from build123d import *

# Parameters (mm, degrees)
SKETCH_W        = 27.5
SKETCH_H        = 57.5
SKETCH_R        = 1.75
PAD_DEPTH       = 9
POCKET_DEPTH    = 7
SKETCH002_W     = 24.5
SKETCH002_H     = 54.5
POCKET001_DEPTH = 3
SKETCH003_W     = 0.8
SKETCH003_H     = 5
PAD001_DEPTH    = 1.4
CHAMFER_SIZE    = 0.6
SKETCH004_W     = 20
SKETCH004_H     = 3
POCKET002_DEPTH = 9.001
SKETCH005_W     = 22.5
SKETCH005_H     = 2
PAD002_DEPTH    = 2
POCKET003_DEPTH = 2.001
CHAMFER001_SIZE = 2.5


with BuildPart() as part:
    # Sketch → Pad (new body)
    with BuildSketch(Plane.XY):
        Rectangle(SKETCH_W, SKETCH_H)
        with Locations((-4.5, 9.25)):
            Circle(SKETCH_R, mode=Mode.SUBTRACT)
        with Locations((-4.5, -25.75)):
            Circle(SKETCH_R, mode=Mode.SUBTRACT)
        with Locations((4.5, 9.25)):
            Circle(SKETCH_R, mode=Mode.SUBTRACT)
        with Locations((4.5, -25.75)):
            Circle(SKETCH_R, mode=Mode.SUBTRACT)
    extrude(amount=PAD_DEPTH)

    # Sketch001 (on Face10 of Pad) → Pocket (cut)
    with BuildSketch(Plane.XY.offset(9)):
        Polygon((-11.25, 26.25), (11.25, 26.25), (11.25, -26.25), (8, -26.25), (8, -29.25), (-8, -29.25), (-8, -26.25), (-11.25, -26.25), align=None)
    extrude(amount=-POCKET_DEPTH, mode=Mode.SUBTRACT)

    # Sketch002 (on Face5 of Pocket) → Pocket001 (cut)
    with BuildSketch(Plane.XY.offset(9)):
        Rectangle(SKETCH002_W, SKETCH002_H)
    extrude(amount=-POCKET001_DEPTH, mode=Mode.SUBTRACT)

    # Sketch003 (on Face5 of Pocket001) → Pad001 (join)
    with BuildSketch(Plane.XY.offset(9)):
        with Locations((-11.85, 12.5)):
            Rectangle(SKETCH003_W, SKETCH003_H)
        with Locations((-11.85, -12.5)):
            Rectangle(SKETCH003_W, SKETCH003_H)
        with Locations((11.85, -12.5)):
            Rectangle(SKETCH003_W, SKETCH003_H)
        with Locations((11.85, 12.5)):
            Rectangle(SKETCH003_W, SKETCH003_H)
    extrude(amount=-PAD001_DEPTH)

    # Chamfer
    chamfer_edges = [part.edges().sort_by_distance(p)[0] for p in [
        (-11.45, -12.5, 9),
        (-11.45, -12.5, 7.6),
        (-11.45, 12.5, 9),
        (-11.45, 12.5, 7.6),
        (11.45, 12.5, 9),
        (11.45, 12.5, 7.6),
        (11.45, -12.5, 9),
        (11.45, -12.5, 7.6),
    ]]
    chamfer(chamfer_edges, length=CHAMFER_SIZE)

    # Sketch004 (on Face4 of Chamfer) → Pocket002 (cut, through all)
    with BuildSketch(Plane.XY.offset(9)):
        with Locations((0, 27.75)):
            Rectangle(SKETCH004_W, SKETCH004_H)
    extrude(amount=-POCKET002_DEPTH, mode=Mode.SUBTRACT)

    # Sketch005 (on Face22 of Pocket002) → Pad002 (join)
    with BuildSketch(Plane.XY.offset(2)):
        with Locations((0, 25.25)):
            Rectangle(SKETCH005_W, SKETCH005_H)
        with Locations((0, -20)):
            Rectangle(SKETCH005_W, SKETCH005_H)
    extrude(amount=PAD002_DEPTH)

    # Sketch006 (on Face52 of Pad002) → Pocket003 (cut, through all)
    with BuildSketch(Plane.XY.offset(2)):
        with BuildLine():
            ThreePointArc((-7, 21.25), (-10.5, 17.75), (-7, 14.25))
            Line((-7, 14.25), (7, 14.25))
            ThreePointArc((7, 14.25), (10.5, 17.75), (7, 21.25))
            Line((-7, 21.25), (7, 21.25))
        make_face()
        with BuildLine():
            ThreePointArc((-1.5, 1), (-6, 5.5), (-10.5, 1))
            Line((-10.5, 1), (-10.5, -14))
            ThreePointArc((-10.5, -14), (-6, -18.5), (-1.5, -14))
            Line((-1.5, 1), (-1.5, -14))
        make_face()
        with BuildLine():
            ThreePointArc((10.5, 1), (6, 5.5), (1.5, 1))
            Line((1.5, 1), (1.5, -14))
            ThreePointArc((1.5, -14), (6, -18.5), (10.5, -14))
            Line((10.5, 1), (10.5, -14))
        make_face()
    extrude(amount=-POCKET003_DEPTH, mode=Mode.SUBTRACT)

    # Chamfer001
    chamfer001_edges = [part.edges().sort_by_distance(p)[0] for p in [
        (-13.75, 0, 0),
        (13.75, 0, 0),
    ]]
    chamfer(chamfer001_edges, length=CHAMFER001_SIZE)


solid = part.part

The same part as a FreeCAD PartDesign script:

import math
import FreeCAD as App
import Part
import Sketcher

V = App.Vector


def edges_at(feature, points):
    """Names of the edges that pass closest to the given points."""
    edges = feature.Shape.Edges
    near = lambda p: min(range(len(edges)), key=lambda i: edges[i].distToShape(Part.Vertex(*p))[0])
    return sorted({f"Edge{near(p) + 1}" for p in points})


def add_polygon(sketch, points):
    """Adds a closed chain of lines whose ends are joined by coincident constraints."""
    first, n = sketch.GeometryCount, len(points)
    for a, b in zip(points, points[1:] + points[:1]):
        sketch.addGeometry(Part.LineSegment(App.Vector(*a, 0), App.Vector(*b, 0)), False)
    for i in range(n):
        sketch.addConstraint(Sketcher.Constraint("Coincident", first + i, 2, first + (i + 1) % n, 1))

doc = App.newDocument("Part")
params = doc.addObject("Spreadsheet::Sheet", "Params")
for row, (alias, value) in enumerate([
    ("sketch1_diameter", "3.5 mm"),
    ("sketch1_width", "27.5 mm"),
    ("sketch1_height", "57.5 mm"),
    ("pad1_length", "9 mm"),
    ("sketch2_width", "16 mm"),
    ("sketch2_height", "3 mm"),
    ("sketch2_width2", "22.5 mm"),
    ("sketch2_height2", "52.5 mm"),
    ("pocket1_length", "7 mm"),
    ("sketch3_width", "24.5 mm"),
    ("sketch3_height", "54.5 mm"),
    ("pocket2_length", "3 mm"),
    ("sketch4_height", "5 mm"),
    ("sketch4_width", "0.8 mm"),
    ("pad2_length", "1.4 mm"),
    ("chamfer_size", "0.6 mm"),
    ("sketch5_width", "20 mm"),
    ("sketch5_height", "3 mm"),
    ("sketch6_height", "2 mm"),
    ("sketch6_width", "22.5 mm"),
    ("pad3_length", "2 mm"),
    ("sketch7_radius", "3.5 mm"),
    ("sketch7_radius2", "4.5 mm"),
    ("sketch7_width", "14 mm"),
    ("sketch7_height", "15 mm"),
    ("chamfer2_size", "2.5 mm"),
], start=1):
    params.set(f"A{row}", alias)
    params.set(f"B{row}", "=" + value)
    params.setAlias(f"B{row}", alias)

body = doc.addObject("PartDesign::Body", "Body")

# Sketch on XY plane
sketch1 = body.newObject("Sketcher::SketchObject", "Sketch")
sketch1.AttachmentSupport = (doc.getObject("XY_Plane"), [""])
sketch1.MapMode = "FlatFace"
add_polygon(sketch1, [(-13.8, 28.8), (-13.8, -28.8), (13.8, -28.8), (13.8, 28.8)])  # lines 0-3
sketch1.addGeometry(Part.Circle(V(-4.5, -25.8, 0), V(0, 0, 1), 1.8), False)  # 4
sketch1.addGeometry(Part.Circle(V(4.5, -25.8, 0), V(0, 0, 1), 1.8), False)  # 5
sketch1.addGeometry(Part.Circle(V(-4.5, 9.2, 0), V(0, 0, 1), 1.8), False)  # 6
sketch1.addGeometry(Part.Circle(V(4.5, 9.2, 0), V(0, 0, 1), 1.8), False)  # 7
sketch1.addConstraint([
    Sketcher.Constraint("Vertical", 0),
    Sketcher.Constraint("Horizontal", 1),
    Sketcher.Constraint("Vertical", 2),
    Sketcher.Constraint("Horizontal", 3),
    Sketcher.Constraint("Equal", 4, 5),
    Sketcher.Constraint("Equal", 5, 6),
    Sketcher.Constraint("Equal", 6, 7),
    Sketcher.Constraint("Symmetric", 0, 2, 2, 2, -1, 1),
    Sketcher.Constraint("Symmetric", 4, 3, 5, 3, -2),
    Sketcher.Constraint("Symmetric", 6, 3, 7, 3, -2),
    Sketcher.Constraint("Vertical", 4, 3, 6, 3),
    Sketcher.Constraint("Diameter", 4, 3.5),
    Sketcher.Constraint("DistanceX", 1, 1, 1, 2, 27.5),
    Sketcher.Constraint("DistanceY", 0, 2, 0, 1, 57.5),
    Sketcher.Constraint("DistanceX", 4, 3, 5, 3, 9.0),
    Sketcher.Constraint("DistanceY", 4, 3, 6, 3, 35.0),
    Sketcher.Constraint("DistanceY", 0, 2, 4, 3, 3.0),
])
sketch1.setExpression("Constraints[15]", "Params.sketch1_diameter")
sketch1.setExpression("Constraints[16]", "Params.sketch1_width")
sketch1.setExpression("Constraints[17]", "Params.sketch1_height")
pad1 = body.newObject("PartDesign::Pad", "Pad")
pad1.Profile = sketch1
pad1.setExpression("Length", "Params.pad1_length")

# Sketch on XY plane
sketch2 = body.newObject("Sketcher::SketchObject", "Sketch001")
sketch2.AttachmentSupport = (doc.getObject("XY_Plane"), [""])
sketch2.MapMode = "FlatFace"
sketch2.AttachmentOffset = App.Placement(V(0, 0, 9), App.Rotation())
add_polygon(sketch2, [(11.2, 26.2), (-11.2, 26.2), (-11.2, -26.2), (-8, -26.2), (-8, -29.2), (8, -29.2), (8, -26.2), (11.2, -26.2)])  # lines 0-7
sketch2.addConstraint([
    Sketcher.Constraint("Horizontal", 0),
    Sketcher.Constraint("Vertical", 1),
    Sketcher.Constraint("Horizontal", 2),
    Sketcher.Constraint("Vertical", 3),
    Sketcher.Constraint("Horizontal", 4),
    Sketcher.Constraint("Vertical", 5),
    Sketcher.Constraint("Horizontal", 6),
    Sketcher.Constraint("Vertical", 7),
    Sketcher.Constraint("Symmetric", 0, 2, 6, 2, -1, 1),
    Sketcher.Constraint("Symmetric", 2, 2, 5, 2, -2),
    Sketcher.Constraint("DistanceX", 4, 1, 4, 2, 16.0),
    Sketcher.Constraint("DistanceY", 3, 2, 3, 1, 3.0),
    Sketcher.Constraint("DistanceX", 0, 2, 0, 1, 22.5),
    Sketcher.Constraint("DistanceY", 1, 2, 1, 1, 52.5),
])
sketch2.setExpression("Constraints[18]", "Params.sketch2_width")
sketch2.setExpression("Constraints[19]", "Params.sketch2_height")
sketch2.setExpression("Constraints[20]", "Params.sketch2_width2")
sketch2.setExpression("Constraints[21]", "Params.sketch2_height2")
pocket1 = body.newObject("PartDesign::Pocket", "Pocket")
pocket1.Profile = sketch2
pocket1.setExpression("Length", "Params.pocket1_length")

# Sketch on XY plane
sketch3 = body.newObject("Sketcher::SketchObject", "Sketch002")
sketch3.AttachmentSupport = (doc.getObject("XY_Plane"), [""])
sketch3.MapMode = "FlatFace"
sketch3.AttachmentOffset = App.Placement(V(0, 0, 9), App.Rotation())
add_polygon(sketch3, [(-12, 27), (-12, -27), (12, -27), (12, 27)])  # lines 0-3
sketch3.addConstraint([
    Sketcher.Constraint("Vertical", 0),
    Sketcher.Constraint("Horizontal", 1),
    Sketcher.Constraint("Vertical", 2),
    Sketcher.Constraint("Horizontal", 3),
    Sketcher.Constraint("Symmetric", 0, 2, 2, 2, -1, 1),
    Sketcher.Constraint("DistanceX", 1, 1, 1, 2, 24.5),
    Sketcher.Constraint("DistanceY", 0, 2, 0, 1, 54.5),
])
sketch3.setExpression("Constraints[9]", "Params.sketch3_width")
sketch3.setExpression("Constraints[10]", "Params.sketch3_height")
pocket2 = body.newObject("PartDesign::Pocket", "Pocket001")
pocket2.Profile = sketch3
pocket2.setExpression("Length", "Params.pocket2_length")

# Sketch on XY plane
sketch4 = body.newObject("Sketcher::SketchObject", "Sketch003")
sketch4.AttachmentSupport = (doc.getObject("XY_Plane"), [""])
sketch4.MapMode = "FlatFace"
sketch4.AttachmentOffset = App.Placement(V(0, 0, 9), App.Rotation())
add_polygon(sketch4, [(-12.2, 15), (-12.2, 10), (-11.4, 10), (-11.4, 15)])  # lines 0-3
add_polygon(sketch4, [(-12.2, -10), (-12.2, -15), (-11.4, -15), (-11.4, -10)])  # lines 4-7
add_polygon(sketch4, [(11.4, -10), (11.4, -15), (12.2, -15), (12.2, -10)])  # lines 8-11
add_polygon(sketch4, [(11.4, 15), (11.4, 10), (12.2, 10), (12.2, 15)])  # lines 12-15
sketch4.addConstraint([
    Sketcher.Constraint("Vertical", 0),
    Sketcher.Constraint("Horizontal", 1),
    Sketcher.Constraint("Vertical", 2),
    Sketcher.Constraint("Horizontal", 3),
    Sketcher.Constraint("Vertical", 4),
    Sketcher.Constraint("Horizontal", 5),
    Sketcher.Constraint("Vertical", 6),
    Sketcher.Constraint("Horizontal", 7),
    Sketcher.Constraint("Vertical", 8),
    Sketcher.Constraint("Horizontal", 9),
    Sketcher.Constraint("Vertical", 10),
    Sketcher.Constraint("Horizontal", 11),
    Sketcher.Constraint("Vertical", 12),
    Sketcher.Constraint("Horizontal", 13),
    Sketcher.Constraint("Vertical", 14),
    Sketcher.Constraint("Horizontal", 15),
    Sketcher.Constraint("Symmetric", 2, 2, 8, 2, -1, 1),
    Sketcher.Constraint("Symmetric", 0, 2, 10, 2, -1, 1),
    Sketcher.Constraint("Symmetric", 6, 2, 12, 2, -1, 1),
    Sketcher.Constraint("Symmetric", 4, 2, 14, 2, -1, 1),
    Sketcher.Constraint("Symmetric", 5, 2, 8, 2, -2),
    Sketcher.Constraint("Symmetric", 7, 2, 10, 2, -2),
    Sketcher.Constraint("DistanceY", 0, 2, 0, 1, 5.0),
    Sketcher.Constraint("DistanceX", 1, 1, 1, 2, 0.8),
    Sketcher.Constraint("DistanceY", -1, 1, 0, 2, 10.0),
    Sketcher.Constraint("DistanceX", 5, 2, 8, 2, 22.9),
])
sketch4.setExpression("Constraints[38]", "Params.sketch4_height")
sketch4.setExpression("Constraints[39]", "Params.sketch4_width")
pad2 = body.newObject("PartDesign::Pad", "Pad001")
pad2.Profile = sketch4
pad2.setExpression("Length", "Params.pad2_length")
pad2.Reversed = True
doc.recompute()

chamfer = body.newObject("PartDesign::Chamfer", "Chamfer")
chamfer.Base = (pad2, edges_at(pad2, [
    (-11.45, -12.5, 9),
    (-11.45, -12.5, 7.6),
    (-11.45, 12.5, 9),
    (-11.45, 12.5, 7.6),
    (11.45, 12.5, 9),
    (11.45, 12.5, 7.6),
    (11.45, -12.5, 9),
    (11.45, -12.5, 7.6),
]))
chamfer.setExpression("Size", "Params.chamfer_size")

# Sketch on XY plane
sketch5 = body.newObject("Sketcher::SketchObject", "Sketch004")
sketch5.AttachmentSupport = (doc.getObject("XY_Plane"), [""])
sketch5.MapMode = "FlatFace"
sketch5.AttachmentOffset = App.Placement(V(0, 0, 9), App.Rotation())
add_polygon(sketch5, [(-10, 29.2), (-10, 26.2), (10, 26.2), (10, 29.2)])  # lines 0-3
sketch5.addConstraint([
    Sketcher.Constraint("Vertical", 0),
    Sketcher.Constraint("Horizontal", 1),
    Sketcher.Constraint("Vertical", 2),
    Sketcher.Constraint("Horizontal", 3),
    Sketcher.Constraint("DistanceX", 1, 1, 1, 2, 20.0),
    Sketcher.Constraint("DistanceY", 0, 2, 0, 1, 3.0),
    Sketcher.Constraint("DistanceX", 0, 2, -1, 1, 10.0),
    Sketcher.Constraint("DistanceY", -1, 1, 0, 2, 26.25),
])
sketch5.setExpression("Constraints[8]", "Params.sketch5_width")
sketch5.setExpression("Constraints[9]", "Params.sketch5_height")
pocket3 = body.newObject("PartDesign::Pocket", "Pocket002")
pocket3.Profile = sketch5
pocket3.Type = "ThroughAll"

# Sketch on XY plane
sketch6 = body.newObject("Sketcher::SketchObject", "Sketch005")
sketch6.AttachmentSupport = (doc.getObject("XY_Plane"), [""])
sketch6.MapMode = "FlatFace"
sketch6.AttachmentOffset = App.Placement(V(0, 0, 2), App.Rotation())
add_polygon(sketch6, [(-11.2, 26.2), (-11.2, 24.2), (11.2, 24.2), (11.2, 26.2)])  # lines 0-3
add_polygon(sketch6, [(-11.2, -19), (-11.2, -21), (11.2, -21), (11.2, -19)])  # lines 4-7
sketch6.addConstraint([
    Sketcher.Constraint("Vertical", 0),
    Sketcher.Constraint("Horizontal", 1),
    Sketcher.Constraint("Vertical", 2),
    Sketcher.Constraint("Horizontal", 3),
    Sketcher.Constraint("Vertical", 4),
    Sketcher.Constraint("Horizontal", 5),
    Sketcher.Constraint("Vertical", 6),
    Sketcher.Constraint("Horizontal", 7),
    Sketcher.Constraint("Vertical", 3, 2, 4, 2),
    Sketcher.Constraint("Vertical", 2, 2, 5, 2),
    Sketcher.Constraint("Equal", 2, 4),
    Sketcher.Constraint("DistanceY", 0, 2, 0, 1, 2.0),
    Sketcher.Constraint("DistanceX", 1, 1, 1, 2, 22.5),
    Sketcher.Constraint("DistanceY", 4, 2, -1, 1, 21.0),
    Sketcher.Constraint("DistanceX", 0, 2, -1, 1, 11.25),
    Sketcher.Constraint("DistanceY", -1, 1, 0, 2, 24.25),
])
sketch6.setExpression("Constraints[19]", "Params.sketch6_height")
sketch6.setExpression("Constraints[20]", "Params.sketch6_width")
pad3 = body.newObject("PartDesign::Pad", "Pad002")
pad3.Profile = sketch6
pad3.setExpression("Length", "Params.pad3_length")

# Sketch on XY plane
sketch7 = body.newObject("Sketcher::SketchObject", "Sketch006")
sketch7.AttachmentSupport = (doc.getObject("XY_Plane"), [""])
sketch7.MapMode = "FlatFace"
sketch7.AttachmentOffset = App.Placement(V(0, 0, 2), App.Rotation())
sketch7.addGeometry([
    Part.ArcOfCircle(Part.Circle(V(-7, 17.8, 0), V(0, 0, 1), 3.5), math.radians(90), math.radians(270)),  # 0
    Part.LineSegment(V(-7, 14.2, 0), V(7, 14.2, 0)),  # 1
    Part.ArcOfCircle(Part.Circle(V(7, 17.8, 0), V(0, 0, 1), 3.5), math.radians(-90), math.radians(90)),  # 2
    Part.LineSegment(V(7, 21.2, 0), V(-7, 21.2, 0)),  # 3
    Part.ArcOfCircle(Part.Circle(V(-6, 1, 0), V(0, 0, 1), 4.5), math.radians(0), math.radians(180)),  # 4
    Part.LineSegment(V(-10.5, 1, 0), V(-10.5, -14, 0)),  # 5
    Part.ArcOfCircle(Part.Circle(V(-6, -14, 0), V(0, 0, 1), 4.5), math.radians(180), math.radians(360)),  # 6
    Part.LineSegment(V(-1.5, -14, 0), V(-1.5, 1, 0)),  # 7
    Part.ArcOfCircle(Part.Circle(V(6, 1, 0), V(0, 0, 1), 4.5), math.radians(0), math.radians(180)),  # 8
    Part.LineSegment(V(1.5, 1, 0), V(1.5, -14, 0)),  # 9
    Part.ArcOfCircle(Part.Circle(V(6, -14, 0), V(0, 0, 1), 4.5), math.radians(180), math.radians(360)),  # 10
    Part.LineSegment(V(10.5, -14, 0), V(10.5, 1, 0)),  # 11
], False)
sketch7.addConstraint([
    Sketcher.Constraint("Tangent", 0, 2, 1, 1),
    Sketcher.Constraint("Tangent", 1, 2, 2, 1),
    Sketcher.Constraint("Tangent", 2, 2, 3, 1),
    Sketcher.Constraint("Tangent", 3, 2, 0, 1),
    Sketcher.Constraint("Tangent", 4, 2, 5, 1),
    Sketcher.Constraint("Tangent", 5, 2, 6, 1),
    Sketcher.Constraint("Tangent", 6, 2, 7, 1),
    Sketcher.Constraint("Tangent", 7, 2, 4, 1),
    Sketcher.Constraint("Tangent", 8, 2, 9, 1),
    Sketcher.Constraint("Tangent", 9, 2, 10, 1),
    Sketcher.Constraint("Tangent", 10, 2, 11, 1),
    Sketcher.Constraint("Tangent", 11, 2, 8, 1),
    Sketcher.Constraint("Horizontal", 1),
    Sketcher.Constraint("Horizontal", 3),
    Sketcher.Constraint("Vertical", 5),
    Sketcher.Constraint("Vertical", 7),
    Sketcher.Constraint("Vertical", 9),
    Sketcher.Constraint("Vertical", 11),
    Sketcher.Constraint("Equal", 6, 8),
    Sketcher.Constraint("Symmetric", 4, 3, 8, 3, -2),
    Sketcher.Constraint("Horizontal", 6, 3, 10, 3),
    Sketcher.Constraint("Radius", 0, 3.5),
    Sketcher.Constraint("Radius", 4, 4.5),
    Sketcher.Constraint("DistanceX", 1, 1, 1, 2, 14.0),
    Sketcher.Constraint("DistanceY", 5, 2, 5, 1, 15.0),
    Sketcher.Constraint("DistanceX", 0, 3, -1, 1, 7.0),
    Sketcher.Constraint("DistanceX", 4, 3, -1, 1, 6.0),
    Sketcher.Constraint("DistanceY", -1, 1, 4, 3, 1.0),
    Sketcher.Constraint("DistanceY", -1, 1, 0, 3, 17.75),
])
sketch7.setExpression("Constraints[21]", "Params.sketch7_radius")
sketch7.setExpression("Constraints[22]", "Params.sketch7_radius2")
sketch7.setExpression("Constraints[23]", "Params.sketch7_width")
sketch7.setExpression("Constraints[24]", "Params.sketch7_height")
pocket4 = body.newObject("PartDesign::Pocket", "Pocket003")
pocket4.Profile = sketch7
pocket4.Type = "ThroughAll"
doc.recompute()

chamfer2 = body.newObject("PartDesign::Chamfer", "Chamfer001")
chamfer2.Base = (pocket4, edges_at(pocket4, [(-13.75, 0, 0), (13.75, 0, 0)]))
chamfer2.setExpression("Size", "Params.chamfer2_size")

doc.recompute()
